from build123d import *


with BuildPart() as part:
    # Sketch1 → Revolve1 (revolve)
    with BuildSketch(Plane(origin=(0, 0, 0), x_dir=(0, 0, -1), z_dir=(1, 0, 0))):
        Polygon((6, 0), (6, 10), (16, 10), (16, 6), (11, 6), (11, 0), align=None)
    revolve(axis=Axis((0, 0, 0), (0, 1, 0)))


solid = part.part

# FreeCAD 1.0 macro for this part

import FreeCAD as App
import Part
import Sketcher
from FreeCAD import Vector
Q = App.Units.Quantity

doc = App.newDocument("Part")
params = doc.addObject("Spreadsheet::Sheet", "Params")
for row, (alias, value) in enumerate([
    ("sketch1_width", "10 mm"),
    ("sketch1_width2", "6 mm"),
    ("revolution_angle", "360 deg"),
], start=1):
    params.set(f"A{row}", alias)
    params.set(f"B{row}", "=" + value)
    params.setAlias(f"B{row}", alias)

body = doc.addObject("PartDesign::Body", "Body")

# Sketch on YZ plane
sketch1 = doc.addObject("Sketcher::SketchObject", "Sketch")
body.addObject(sketch1)
sketch1.AttachmentSupport = (doc.YZ_Plane, [""])
sketch1.MapMode = "FlatFace"
sketch1.addGeometry(Part.LineSegment(Vector(10, -6, 0), Vector(0, -6, 0)), False)
sketch1.addGeometry(Part.LineSegment(Vector(0, -6, 0), Vector(0, -11, 0)), False)
sketch1.addGeometry(Part.LineSegment(Vector(0, -11, 0), Vector(6, -11, 0)), False)
sketch1.addGeometry(Part.LineSegment(Vector(6, -11, 0), Vector(6, -16, 0)), False)
sketch1.addGeometry(Part.LineSegment(Vector(6, -16, 0), Vector(10, -16, 0)), False)
sketch1.addGeometry(Part.LineSegment(Vector(10, -16, 0), Vector(10, -6, 0)), False)
sketch1.addConstraint(Sketcher.Constraint("Coincident", 0, 2, 1, 1))
sketch1.addConstraint(Sketcher.Constraint("Coincident", 1, 2, 2, 1))
sketch1.addConstraint(Sketcher.Constraint("Coincident", 2, 2, 3, 1))
sketch1.addConstraint(Sketcher.Constraint("Coincident", 3, 2, 4, 1))
sketch1.addConstraint(Sketcher.Constraint("Coincident", 4, 2, 5, 1))
sketch1.addConstraint(Sketcher.Constraint("Coincident", 5, 2, 0, 1))
sketch1.addConstraint(Sketcher.Constraint("Horizontal", 0))
sketch1.addConstraint(Sketcher.Constraint("Vertical", 1))
sketch1.addConstraint(Sketcher.Constraint("Horizontal", 2))
sketch1.addConstraint(Sketcher.Constraint("Vertical", 3))
sketch1.addConstraint(Sketcher.Constraint("Horizontal", 4))
sketch1.addConstraint(Sketcher.Constraint("Vertical", 5))
sketch1.addConstraint(Sketcher.Constraint("PointOnObject", 0, 2, -2))
sketch1.addConstraint(Sketcher.Constraint("Equal", 1, 3))
sketch1.addConstraint(Sketcher.Constraint("Equal", 0, 5))
sketch1.addConstraint(Sketcher.Constraint("DistanceX", 0, 2, 0, 1, Q("10 mm")))
sketch1.addConstraint(Sketcher.Constraint("DistanceX", 2, 1, 2, 2, Q("6 mm")))
sketch1.addConstraint(Sketcher.Constraint("DistanceY", 0, 2, -1, 1, Q("6 mm")))
sketch1.setExpression("Constraints[15]", "Params.sketch1_width")
sketch1.setExpression("Constraints[16]", "Params.sketch1_width2")
revolution = doc.addObject("PartDesign::Revolution", "Revolution")
body.addObject(revolution)
revolution.Profile = sketch1
revolution.ReferenceAxis = (sketch1, ["H_Axis"])
revolution.setExpression("Angle", "Params.revolution_angle")

doc.recompute()
